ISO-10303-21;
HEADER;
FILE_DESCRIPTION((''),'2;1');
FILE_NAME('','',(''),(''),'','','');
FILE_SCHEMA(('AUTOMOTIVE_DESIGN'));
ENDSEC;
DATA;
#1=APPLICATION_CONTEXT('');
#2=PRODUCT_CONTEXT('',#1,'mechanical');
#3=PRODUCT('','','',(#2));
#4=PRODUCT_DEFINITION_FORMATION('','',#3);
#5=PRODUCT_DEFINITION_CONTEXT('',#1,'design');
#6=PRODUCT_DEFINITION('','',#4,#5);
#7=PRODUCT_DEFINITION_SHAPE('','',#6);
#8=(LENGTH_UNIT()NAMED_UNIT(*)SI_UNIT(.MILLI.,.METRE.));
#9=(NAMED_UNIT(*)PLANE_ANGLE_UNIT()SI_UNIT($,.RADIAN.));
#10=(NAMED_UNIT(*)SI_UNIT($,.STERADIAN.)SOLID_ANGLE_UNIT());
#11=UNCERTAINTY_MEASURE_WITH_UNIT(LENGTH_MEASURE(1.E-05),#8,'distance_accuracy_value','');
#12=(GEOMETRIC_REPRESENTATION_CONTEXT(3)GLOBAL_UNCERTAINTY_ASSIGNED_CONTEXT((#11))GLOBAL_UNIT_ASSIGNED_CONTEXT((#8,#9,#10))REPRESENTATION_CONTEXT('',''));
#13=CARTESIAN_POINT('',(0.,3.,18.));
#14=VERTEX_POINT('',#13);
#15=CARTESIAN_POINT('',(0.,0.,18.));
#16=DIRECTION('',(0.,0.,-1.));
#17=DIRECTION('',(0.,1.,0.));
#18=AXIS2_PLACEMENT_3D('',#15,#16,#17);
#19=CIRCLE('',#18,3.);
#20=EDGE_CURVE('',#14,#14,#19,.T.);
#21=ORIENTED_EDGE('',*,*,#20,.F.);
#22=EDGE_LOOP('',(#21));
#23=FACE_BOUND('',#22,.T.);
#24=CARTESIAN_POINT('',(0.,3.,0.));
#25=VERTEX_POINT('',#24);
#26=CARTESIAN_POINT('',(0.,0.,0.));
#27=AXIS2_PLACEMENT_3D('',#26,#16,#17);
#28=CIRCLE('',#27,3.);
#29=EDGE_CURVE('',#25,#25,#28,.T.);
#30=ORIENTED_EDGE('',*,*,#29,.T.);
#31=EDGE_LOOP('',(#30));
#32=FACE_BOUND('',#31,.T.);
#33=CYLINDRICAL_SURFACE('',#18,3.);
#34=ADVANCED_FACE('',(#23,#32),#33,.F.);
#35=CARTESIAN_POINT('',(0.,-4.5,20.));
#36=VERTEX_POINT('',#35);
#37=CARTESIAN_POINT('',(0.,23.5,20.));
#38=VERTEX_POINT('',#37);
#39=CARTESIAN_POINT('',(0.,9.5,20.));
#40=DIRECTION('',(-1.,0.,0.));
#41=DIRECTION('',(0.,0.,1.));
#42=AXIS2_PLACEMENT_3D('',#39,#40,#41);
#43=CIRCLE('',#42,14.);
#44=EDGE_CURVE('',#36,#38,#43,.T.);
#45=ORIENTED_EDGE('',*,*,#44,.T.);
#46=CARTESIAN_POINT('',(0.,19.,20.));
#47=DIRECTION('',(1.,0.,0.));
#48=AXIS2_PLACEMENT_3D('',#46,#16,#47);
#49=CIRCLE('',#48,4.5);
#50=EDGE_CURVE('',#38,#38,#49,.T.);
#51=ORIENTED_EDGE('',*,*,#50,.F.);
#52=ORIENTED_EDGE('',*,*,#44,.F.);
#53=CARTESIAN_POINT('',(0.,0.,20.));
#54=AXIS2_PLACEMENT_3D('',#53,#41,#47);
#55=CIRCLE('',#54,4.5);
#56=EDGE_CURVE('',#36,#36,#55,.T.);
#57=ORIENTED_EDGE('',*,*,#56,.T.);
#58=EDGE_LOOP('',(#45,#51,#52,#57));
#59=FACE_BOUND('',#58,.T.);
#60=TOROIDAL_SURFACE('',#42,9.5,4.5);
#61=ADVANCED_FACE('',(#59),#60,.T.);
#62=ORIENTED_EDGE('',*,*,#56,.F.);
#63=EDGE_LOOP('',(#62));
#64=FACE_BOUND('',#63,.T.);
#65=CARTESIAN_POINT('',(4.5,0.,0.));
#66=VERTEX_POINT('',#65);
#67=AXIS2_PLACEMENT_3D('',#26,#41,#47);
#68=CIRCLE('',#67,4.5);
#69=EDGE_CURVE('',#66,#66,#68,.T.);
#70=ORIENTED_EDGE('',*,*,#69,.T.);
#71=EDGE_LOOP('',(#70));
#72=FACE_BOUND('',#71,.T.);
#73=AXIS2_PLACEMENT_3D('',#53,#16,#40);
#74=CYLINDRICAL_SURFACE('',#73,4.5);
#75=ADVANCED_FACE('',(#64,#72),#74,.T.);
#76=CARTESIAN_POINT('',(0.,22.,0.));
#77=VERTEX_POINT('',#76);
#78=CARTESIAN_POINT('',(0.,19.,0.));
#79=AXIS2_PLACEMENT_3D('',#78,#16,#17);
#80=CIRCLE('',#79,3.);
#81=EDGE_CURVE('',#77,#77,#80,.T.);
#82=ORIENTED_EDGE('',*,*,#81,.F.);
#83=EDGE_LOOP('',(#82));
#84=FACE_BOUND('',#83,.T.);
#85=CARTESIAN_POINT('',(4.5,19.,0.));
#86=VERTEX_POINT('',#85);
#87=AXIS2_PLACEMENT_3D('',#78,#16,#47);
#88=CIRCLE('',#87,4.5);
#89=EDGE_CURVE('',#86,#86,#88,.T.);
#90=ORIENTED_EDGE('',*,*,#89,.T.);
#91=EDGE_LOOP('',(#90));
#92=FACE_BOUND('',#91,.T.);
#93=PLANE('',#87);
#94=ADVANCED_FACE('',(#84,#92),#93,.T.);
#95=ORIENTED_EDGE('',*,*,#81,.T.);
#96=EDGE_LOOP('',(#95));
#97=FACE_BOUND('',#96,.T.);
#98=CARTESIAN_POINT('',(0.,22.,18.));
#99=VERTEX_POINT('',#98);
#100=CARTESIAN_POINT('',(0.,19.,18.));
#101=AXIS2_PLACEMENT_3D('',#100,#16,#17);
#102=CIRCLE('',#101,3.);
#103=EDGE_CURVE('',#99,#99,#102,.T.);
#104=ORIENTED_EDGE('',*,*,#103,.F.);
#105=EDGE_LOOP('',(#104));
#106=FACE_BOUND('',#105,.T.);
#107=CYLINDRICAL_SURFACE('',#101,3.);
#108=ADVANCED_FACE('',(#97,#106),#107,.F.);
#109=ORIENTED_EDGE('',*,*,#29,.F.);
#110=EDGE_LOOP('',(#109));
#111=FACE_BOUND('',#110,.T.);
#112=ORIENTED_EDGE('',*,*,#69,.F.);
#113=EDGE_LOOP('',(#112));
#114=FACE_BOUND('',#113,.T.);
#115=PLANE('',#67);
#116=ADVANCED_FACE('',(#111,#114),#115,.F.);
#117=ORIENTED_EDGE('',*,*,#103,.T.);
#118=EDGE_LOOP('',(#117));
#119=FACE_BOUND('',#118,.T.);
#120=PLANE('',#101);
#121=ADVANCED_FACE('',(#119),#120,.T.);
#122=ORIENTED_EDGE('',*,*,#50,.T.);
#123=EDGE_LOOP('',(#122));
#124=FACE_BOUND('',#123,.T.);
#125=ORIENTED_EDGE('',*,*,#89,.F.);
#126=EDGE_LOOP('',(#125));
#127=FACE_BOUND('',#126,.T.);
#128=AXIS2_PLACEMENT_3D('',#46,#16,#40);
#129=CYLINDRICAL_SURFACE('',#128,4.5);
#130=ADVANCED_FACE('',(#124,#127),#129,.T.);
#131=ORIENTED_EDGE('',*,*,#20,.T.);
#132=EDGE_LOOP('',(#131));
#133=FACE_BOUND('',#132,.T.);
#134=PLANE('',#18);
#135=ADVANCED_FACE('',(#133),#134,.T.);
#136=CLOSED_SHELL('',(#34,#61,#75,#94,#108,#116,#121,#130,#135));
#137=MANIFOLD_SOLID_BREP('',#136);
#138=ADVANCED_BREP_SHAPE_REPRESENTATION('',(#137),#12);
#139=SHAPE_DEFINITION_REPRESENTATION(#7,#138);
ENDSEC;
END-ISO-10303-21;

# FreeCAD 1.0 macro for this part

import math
import FreeCAD as App
import Part
import Sketcher

V = App.Vector

doc = App.newDocument("Part")
body = doc.addObject("PartDesign::Body", "Body")

# Sketch on XY plane
sketch1 = body.newObject("Sketcher::SketchObject", "Sketch")
sketch1.AttachmentSupport = (doc.getObject("XY_Plane"), [""])
sketch1.MapMode = "FlatFace"
sketch1.addGeometry(Part.Circle(V(0, 0, 0), V(0, 0, 1), 4.5), False)
sketch1.addConstraint(Sketcher.Constraint("Coincident", 0, 3, -1, 1))
sketch1.addConstraint(Sketcher.Constraint("Diameter", 0, 9.0))

# Sketch on YZ plane
sketch2 = body.newObject("Sketcher::SketchObject", "Sketch001")
sketch2.AttachmentSupport = (doc.getObject("YZ_Plane"), [""])
sketch2.MapMode = "FlatFace"
sketch2.addGeometry(Part.LineSegment(V(0, 0, 0), V(0, 20, 0)), False)
sketch2.addGeometry(Part.ArcOfCircle(Part.Circle(V(10, 20, 0), V(0, 0, 1), 10), math.radians(0), math.radians(180)), False)
sketch2.addGeometry(Part.LineSegment(V(19, 20, 0), V(19, 0, 0)), False)
sketch2.addConstraint(Sketcher.Constraint("Tangent", 0, 2, 1, 2))
sketch2.addConstraint(Sketcher.Constraint("Tangent", 1, 1, 2, 1))
sketch2.addConstraint(Sketcher.Constraint("Vertical", 0))
sketch2.addConstraint(Sketcher.Constraint("Vertical", 2))
sketch2.addConstraint(Sketcher.Constraint("Coincident", 0, 1, -1, 1))
sketch2.addConstraint(Sketcher.Constraint("PointOnObject", 2, 2, -1))
sketch2.addConstraint(Sketcher.Constraint("Radius", 1, 9.5))
sketch2.addConstraint(Sketcher.Constraint("DistanceY", 0, 1, 0, 2, 20.0))
doc.recompute()

additivepipe = body.newObject("PartDesign::AdditivePipe", "AdditivePipe")
additivepipe.Profile = sketch1
additivepipe.Spine = (sketch2, ["Edge1", "Edge2", "Edge3"])

# Sketch on XY plane
sketch3 = body.newObject("Sketcher::SketchObject", "Sketch002")
sketch3.AttachmentSupport = (doc.getObject("XY_Plane"), [""])
sketch3.MapMode = "FlatFace"
sketch3.addGeometry(Part.Circle(V(0, 19, 0), V(0, 0, 1), 3), False)
sketch3.addGeometry(Part.Circle(V(0, 0, 0), V(0, 0, 1), 3), False)
sketch3.addConstraint(Sketcher.Constraint("Coincident", 1, 3, -1, 1))
sketch3.addConstraint(Sketcher.Constraint("Equal", 0, 1))
sketch3.addConstraint(Sketcher.Constraint("PointOnObject", 0, 3, -2))
sketch3.addConstraint(Sketcher.Constraint("Diameter", 0, 6.0))
sketch3.addConstraint(Sketcher.Constraint("DistanceY", -1, 1, 0, 3, 19.0))
pocket1 = body.newObject("PartDesign::Pocket", "Pocket")
pocket1.Profile = sketch3
pocket1.Length = 18
pocket1.Reversed = True

doc.recompute()
